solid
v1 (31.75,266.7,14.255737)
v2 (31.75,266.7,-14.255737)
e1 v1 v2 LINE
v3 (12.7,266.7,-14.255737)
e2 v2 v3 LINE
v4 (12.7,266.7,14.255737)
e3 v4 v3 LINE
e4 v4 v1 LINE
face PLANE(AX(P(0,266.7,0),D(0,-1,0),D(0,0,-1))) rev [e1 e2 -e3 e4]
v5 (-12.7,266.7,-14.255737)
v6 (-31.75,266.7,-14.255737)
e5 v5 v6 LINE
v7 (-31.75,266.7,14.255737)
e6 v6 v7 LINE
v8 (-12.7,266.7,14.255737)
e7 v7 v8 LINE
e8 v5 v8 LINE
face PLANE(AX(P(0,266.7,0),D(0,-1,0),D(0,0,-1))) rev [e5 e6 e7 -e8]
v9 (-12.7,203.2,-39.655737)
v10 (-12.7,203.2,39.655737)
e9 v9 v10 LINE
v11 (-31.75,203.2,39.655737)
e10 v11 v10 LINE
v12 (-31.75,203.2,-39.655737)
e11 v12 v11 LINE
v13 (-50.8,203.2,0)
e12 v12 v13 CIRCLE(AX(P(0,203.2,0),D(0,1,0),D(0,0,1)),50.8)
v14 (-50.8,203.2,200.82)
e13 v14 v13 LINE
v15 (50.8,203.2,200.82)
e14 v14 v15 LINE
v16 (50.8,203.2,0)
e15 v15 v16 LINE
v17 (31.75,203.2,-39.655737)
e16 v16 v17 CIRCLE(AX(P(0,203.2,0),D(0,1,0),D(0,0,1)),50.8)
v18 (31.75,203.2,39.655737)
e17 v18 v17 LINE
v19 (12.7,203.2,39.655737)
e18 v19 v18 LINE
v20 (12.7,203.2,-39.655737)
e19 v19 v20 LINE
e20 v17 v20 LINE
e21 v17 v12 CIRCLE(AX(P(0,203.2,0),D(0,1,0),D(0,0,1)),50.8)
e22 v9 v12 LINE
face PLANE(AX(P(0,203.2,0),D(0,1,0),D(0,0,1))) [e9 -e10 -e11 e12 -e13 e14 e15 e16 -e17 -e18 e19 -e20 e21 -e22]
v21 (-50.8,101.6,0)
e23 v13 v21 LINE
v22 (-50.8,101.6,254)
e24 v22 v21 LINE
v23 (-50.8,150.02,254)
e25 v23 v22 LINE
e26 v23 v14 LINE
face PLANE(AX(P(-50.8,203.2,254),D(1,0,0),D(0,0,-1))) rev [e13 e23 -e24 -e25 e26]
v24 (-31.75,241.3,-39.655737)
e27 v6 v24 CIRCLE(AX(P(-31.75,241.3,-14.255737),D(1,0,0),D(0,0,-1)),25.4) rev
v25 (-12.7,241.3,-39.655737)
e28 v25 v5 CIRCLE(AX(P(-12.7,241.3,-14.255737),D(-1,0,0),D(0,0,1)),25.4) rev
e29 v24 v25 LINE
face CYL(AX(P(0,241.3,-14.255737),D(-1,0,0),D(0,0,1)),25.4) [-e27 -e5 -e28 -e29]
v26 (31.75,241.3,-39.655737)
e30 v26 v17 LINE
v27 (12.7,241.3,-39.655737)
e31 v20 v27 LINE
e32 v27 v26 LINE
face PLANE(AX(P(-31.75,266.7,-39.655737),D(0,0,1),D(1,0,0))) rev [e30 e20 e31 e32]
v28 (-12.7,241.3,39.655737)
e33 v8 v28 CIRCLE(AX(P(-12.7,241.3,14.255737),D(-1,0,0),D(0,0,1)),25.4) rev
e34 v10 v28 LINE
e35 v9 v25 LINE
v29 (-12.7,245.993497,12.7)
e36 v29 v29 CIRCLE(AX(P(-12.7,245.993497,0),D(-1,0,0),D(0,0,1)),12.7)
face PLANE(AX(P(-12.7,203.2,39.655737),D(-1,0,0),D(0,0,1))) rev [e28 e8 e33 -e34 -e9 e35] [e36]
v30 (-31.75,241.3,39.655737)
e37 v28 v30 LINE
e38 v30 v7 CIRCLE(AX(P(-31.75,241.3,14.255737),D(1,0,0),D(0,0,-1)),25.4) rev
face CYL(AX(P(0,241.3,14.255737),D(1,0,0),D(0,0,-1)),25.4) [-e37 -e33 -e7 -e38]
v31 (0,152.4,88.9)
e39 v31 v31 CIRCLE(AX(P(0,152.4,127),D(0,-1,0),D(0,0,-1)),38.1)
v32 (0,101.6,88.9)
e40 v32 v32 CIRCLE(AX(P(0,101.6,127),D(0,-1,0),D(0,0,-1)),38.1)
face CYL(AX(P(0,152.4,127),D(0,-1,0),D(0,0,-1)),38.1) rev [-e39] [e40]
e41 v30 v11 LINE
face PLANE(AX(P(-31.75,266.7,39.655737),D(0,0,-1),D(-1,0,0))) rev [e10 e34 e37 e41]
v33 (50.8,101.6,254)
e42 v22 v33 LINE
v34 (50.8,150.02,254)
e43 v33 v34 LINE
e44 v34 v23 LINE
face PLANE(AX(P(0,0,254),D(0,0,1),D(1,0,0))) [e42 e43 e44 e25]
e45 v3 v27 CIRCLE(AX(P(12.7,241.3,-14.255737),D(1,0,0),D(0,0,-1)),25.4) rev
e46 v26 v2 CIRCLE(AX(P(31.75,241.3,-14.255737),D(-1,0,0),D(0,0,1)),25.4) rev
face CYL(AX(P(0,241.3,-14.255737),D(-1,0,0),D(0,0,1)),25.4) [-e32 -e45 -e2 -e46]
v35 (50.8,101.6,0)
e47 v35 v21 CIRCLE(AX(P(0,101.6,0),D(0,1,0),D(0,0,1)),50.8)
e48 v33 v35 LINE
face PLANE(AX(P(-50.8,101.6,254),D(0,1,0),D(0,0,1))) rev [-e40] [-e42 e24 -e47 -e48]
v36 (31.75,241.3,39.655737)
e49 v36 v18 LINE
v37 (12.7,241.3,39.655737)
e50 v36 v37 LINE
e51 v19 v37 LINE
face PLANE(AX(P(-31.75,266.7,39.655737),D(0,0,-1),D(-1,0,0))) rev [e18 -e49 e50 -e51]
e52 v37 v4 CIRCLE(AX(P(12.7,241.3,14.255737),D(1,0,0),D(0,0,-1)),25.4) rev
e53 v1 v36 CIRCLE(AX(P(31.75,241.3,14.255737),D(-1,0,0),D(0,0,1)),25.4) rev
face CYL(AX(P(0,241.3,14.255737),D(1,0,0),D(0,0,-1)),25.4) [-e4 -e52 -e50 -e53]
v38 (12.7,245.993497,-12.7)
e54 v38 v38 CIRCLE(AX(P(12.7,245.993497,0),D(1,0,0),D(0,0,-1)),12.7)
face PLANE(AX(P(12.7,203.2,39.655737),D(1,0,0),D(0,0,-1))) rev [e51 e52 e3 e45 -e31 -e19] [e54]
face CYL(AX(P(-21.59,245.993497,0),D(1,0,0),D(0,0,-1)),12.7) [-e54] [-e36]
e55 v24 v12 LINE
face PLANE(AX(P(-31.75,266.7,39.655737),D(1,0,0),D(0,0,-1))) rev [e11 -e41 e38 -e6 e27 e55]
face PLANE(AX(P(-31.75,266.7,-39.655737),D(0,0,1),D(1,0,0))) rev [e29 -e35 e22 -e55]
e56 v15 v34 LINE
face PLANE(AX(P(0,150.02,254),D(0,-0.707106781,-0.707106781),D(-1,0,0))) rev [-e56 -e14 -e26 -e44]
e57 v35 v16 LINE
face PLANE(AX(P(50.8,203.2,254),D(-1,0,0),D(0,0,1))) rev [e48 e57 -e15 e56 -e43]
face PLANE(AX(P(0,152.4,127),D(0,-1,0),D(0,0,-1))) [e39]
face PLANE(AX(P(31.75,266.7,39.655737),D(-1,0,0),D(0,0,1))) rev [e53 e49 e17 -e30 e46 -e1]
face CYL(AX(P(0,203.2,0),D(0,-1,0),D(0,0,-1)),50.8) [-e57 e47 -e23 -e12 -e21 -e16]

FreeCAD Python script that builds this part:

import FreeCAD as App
import Part
import Sketcher
Q = App.Units.Quantity


def edges_at(feature, points):
    """Names of the edges that pass closest to the given points."""
    edges = feature.Shape.Edges
    near = lambda p: min(range(len(edges)), key=lambda i: edges[i].distToShape(Part.Vertex(*p))[0])
    return sorted({f"Edge{near(p) + 1}" for p in points})


def add_polygon(sketch, points):
    """Adds a closed chain of lines whose ends are joined by coincident constraints."""
    first, n = sketch.GeometryCount, len(points)
    for a, b in zip(points, points[1:] + points[:1]):
        sketch.addGeometry(Part.LineSegment(App.Vector(*a, 0), App.Vector(*b, 0)), False)
    for i in range(n):
        sketch.addConstraint(Sketcher.Constraint("Coincident", first + i, 2, first + (i + 1) % n, 1))

doc = App.newDocument("Part")
body = doc.addObject("PartDesign::Body", "Body")

# Sketch on XZ plane
sketch1 = doc.addObject("Sketcher::SketchObject", "Sketch")
body.addObject(sketch1)
sketch1.AttachmentSupport = (doc.XZ_Plane, [""])
sketch1.MapMode = "FlatFace"
sketch1.addGeometry(Part.Circle(App.Vector(0, 0, 0), App.Vector(0, 0, 1), 51), False)
sketch1.addConstraint(Sketcher.Constraint("Coincident", 0, 3, -1, 1))
sketch1.addConstraint(Sketcher.Constraint("Diameter", 0, Q("4 in")))
pad1 = doc.addObject("PartDesign::Pad", "Pad")
body.addObject(pad1)
pad1.Profile = sketch1
pad1.Length = Q("8 in")
pad1.Reversed = True

# Sketch on XZ plane
sketch2 = doc.addObject("Sketcher::SketchObject", "Sketch001")
body.addObject(sketch2)
sketch2.AttachmentSupport = (doc.XZ_Plane, [""])
sketch2.MapMode = "FlatFace"
sketch2.AttachmentOffset = App.Placement(App.Vector(0, 0, -8 * 25.4), App.Rotation())
add_polygon(sketch2, [(-32, -40), (-32, 40), (32, 40), (32, -40)])  # lines 0-3
sketch2.addConstraint(Sketcher.Constraint("Vertical", 0))
sketch2.addConstraint(Sketcher.Constraint("Horizontal", 1))
sketch2.addConstraint(Sketcher.Constraint("Vertical", 2))
sketch2.addConstraint(Sketcher.Constraint("Horizontal", 3))
sketch2.addConstraint(Sketcher.Constraint("Symmetric", 0, 2, 2, 2, -1, 1))
sketch2.addConstraint(Sketcher.Constraint("DistanceX", 1, 1, 1, 2, Q("2.5 in")))
sketch2.addConstraint(Sketcher.Constraint("DistanceY", 0, 1, 0, 2, Q("79.311475 mm")))
pad2 = doc.addObject("PartDesign::Pad", "Pad001")
body.addObject(pad2)
pad2.Profile = sketch2
pad2.Length = Q("2.5 in")
pad2.Reversed = True

# Sketch on XZ plane
sketch3 = doc.addObject("Sketcher::SketchObject", "Sketch002")
body.addObject(sketch3)
sketch3.AttachmentSupport = (doc.XZ_Plane, [""])
sketch3.MapMode = "FlatFace"
sketch3.AttachmentOffset = App.Placement(App.Vector(0, 0, -10.5 * 25.4), App.Rotation())
add_polygon(sketch3, [(-13, -40), (-13, 40), (13, 40), (13, -40)])  # lines 0-3
sketch3.addConstraint(Sketcher.Constraint("Vertical", 0))
sketch3.addConstraint(Sketcher.Constraint("Horizontal", 1))
sketch3.addConstraint(Sketcher.Constraint("Vertical", 2))
sketch3.addConstraint(Sketcher.Constraint("Horizontal", 3))
sketch3.addConstraint(Sketcher.Constraint("Symmetric", 0, 2, 2, 2, -1, 1))
sketch3.addConstraint(Sketcher.Constraint("DistanceX", 1, 1, 1, 2, Q("1 in")))
sketch3.addConstraint(Sketcher.Constraint("DistanceY", 0, 1, 0, 2, Q("79.311475 mm")))
pocket1 = doc.addObject("PartDesign::Pocket", "Pocket")
body.addObject(pocket1)
pocket1.Profile = sketch3
pocket1.Length = Q("2.5 in")
pocket1.Reversed = True
doc.recompute()

fillet = doc.addObject("PartDesign::Fillet", "Fillet")
body.addObject(fillet)
fillet.Base = (pocket1, edges_at(pocket1, [
    (22.225, 266.7, -39.656),
    (-22.225, 266.7, 39.656),
    (-22.225, 266.7, -39.656),
    (22.225, 266.7, 39.656),
]))
fillet.Radius = Q("1 in")

# Sketch on XZ plane
sketch4 = doc.addObject("Sketcher::SketchObject", "Sketch003")
body.addObject(sketch4)
sketch4.AttachmentSupport = (doc.XZ_Plane, [""])
sketch4.MapMode = "FlatFace"
sketch4.addGeometry(Part.Circle(App.Vector(0, 0, 0), App.Vector(0, 0, 1), 32), False)
sketch4.addConstraint(Sketcher.Constraint("Coincident", 0, 3, -1, 1))
sketch4.addConstraint(Sketcher.Constraint("Diameter", 0, Q("2.5 in")))
pocket2 = doc.addObject("PartDesign::Pocket", "Pocket001")
body.addObject(pocket2)
pocket2.Profile = sketch4
pocket2.Length = Q("2.5 in")

# Sketch on XY plane
sketch5 = doc.addObject("Sketcher::SketchObject", "Sketch004")
body.addObject(sketch5)
sketch5.AttachmentSupport = (doc.XY_Plane, [""])
sketch5.MapMode = "FlatFace"
add_polygon(sketch5, [(-51, 203), (-51, 102), (51, 102), (51, 203)])  # lines 0-3
sketch5.addConstraint(Sketcher.Constraint("Vertical", 0))
sketch5.addConstraint(Sketcher.Constraint("Horizontal", 1))
sketch5.addConstraint(Sketcher.Constraint("Vertical", 2))
sketch5.addConstraint(Sketcher.Constraint("Horizontal", 3))
sketch5.addConstraint(Sketcher.Constraint("Equal", 3, 0))
sketch5.addConstraint(Sketcher.Constraint("DistanceX", 1, 1, 1, 2, Q("4 in")))
sketch5.addConstraint(Sketcher.Constraint("DistanceX", 0, 2, -1, 1, Q("2 in")))
sketch5.addConstraint(Sketcher.Constraint("DistanceY", -1, 1, 0, 2, Q("4 in")))
pad3 = doc.addObject("PartDesign::Pad", "Pad002")
body.addObject(pad3)
pad3.Profile = sketch5
pad3.Length = Q("10 in")

# Sketch on XY plane
sketch6 = doc.addObject("Sketcher::SketchObject", "Sketch005")
body.addObject(sketch6)
sketch6.AttachmentSupport = (doc.XY_Plane, [""])
sketch6.MapMode = "FlatFace"
sketch6.AttachmentOffset = App.Placement(App.Vector(0, 0, 10 * 25.4), App.Rotation())
add_polygon(sketch6, [(-51, 102), (-51, 0), (55, 0), (55, 102)])  # lines 0-3
sketch6.addConstraint(Sketcher.Constraint("Vertical", 0))
sketch6.addConstraint(Sketcher.Constraint("Horizontal", 1))
sketch6.addConstraint(Sketcher.Constraint("Vertical", 2))
sketch6.addConstraint(Sketcher.Constraint("Horizontal", 3))
sketch6.addConstraint(Sketcher.Constraint("PointOnObject", 0, 2, -1))
sketch6.addConstraint(Sketcher.Constraint("DistanceY", 0, 2, 0, 1, Q("4 in")))
sketch6.addConstraint(Sketcher.Constraint("DistanceX", 0, 2, -1, 1, Q("2 in")))
sketch6.addConstraint(Sketcher.Constraint("DistanceX", 1, 1, 1, 2, Q("106.066492 mm")))
pocket3 = doc.addObject("PartDesign::Pocket", "Pocket002")
body.addObject(pocket3)
pocket3.Profile = sketch6
pocket3.Type = "ThroughAll"
doc.recompute()

chamfer = doc.addObject("PartDesign::Chamfer", "Chamfer")
body.addObject(chamfer)
chamfer.Base = (pocket3, edges_at(pocket3, [(0, 203.2, 254)]))
chamfer.Size = 53.18

# Sketch on YZ plane
sketch7 = doc.addObject("Sketcher::SketchObject", "Sketch006")
body.addObject(sketch7)
sketch7.AttachmentSupport = (doc.YZ_Plane, [""])
sketch7.MapMode = "FlatFace"
sketch7.AttachmentOffset = App.Placement(App.Vector(0, 0, 1.25 * 25.4), App.Rotation())
sketch7.addGeometry(Part.Circle(App.Vector(246, 0, 0), App.Vector(0, 0, 1), 13), False)
sketch7.addConstraint(Sketcher.Constraint("PointOnObject", 0, 3, -1))
sketch7.addConstraint(Sketcher.Constraint("Diameter", 0, Q("1 in")))
sketch7.addConstraint(Sketcher.Constraint("DistanceX", -1, 1, 0, 3, Q("245.993497 mm")))
pad4 = doc.addObject("PartDesign::Pad", "Pad003")
body.addObject(pad4)
pad4.Profile = sketch7
pad4.Length = Q("2.1 in")
pad4.Reversed = True

# Sketch on XZ plane
sketch8 = doc.addObject("Sketcher::SketchObject", "Sketch007")
body.addObject(sketch8)
sketch8.AttachmentSupport = (doc.XZ_Plane, [""])
sketch8.MapMode = "FlatFace"
sketch8.AttachmentOffset = App.Placement(App.Vector(0, 0, -4 * 25.4), App.Rotation())
sketch8.addGeometry(Part.Circle(App.Vector(0, 127, 0), App.Vector(0, 0, 1), 38), False)
sketch8.addConstraint(Sketcher.Constraint("PointOnObject", 0, 3, -2))
sketch8.addConstraint(Sketcher.Constraint("Diameter", 0, Q("3 in")))
sketch8.addConstraint(Sketcher.Constraint("DistanceY", -1, 1, 0, 3, Q("5 in")))
pocket4 = doc.addObject("PartDesign::Pocket", "Pocket003")
body.addObject(pocket4)
pocket4.Profile = sketch8
pocket4.Length = Q("2 in")

doc.recompute()
